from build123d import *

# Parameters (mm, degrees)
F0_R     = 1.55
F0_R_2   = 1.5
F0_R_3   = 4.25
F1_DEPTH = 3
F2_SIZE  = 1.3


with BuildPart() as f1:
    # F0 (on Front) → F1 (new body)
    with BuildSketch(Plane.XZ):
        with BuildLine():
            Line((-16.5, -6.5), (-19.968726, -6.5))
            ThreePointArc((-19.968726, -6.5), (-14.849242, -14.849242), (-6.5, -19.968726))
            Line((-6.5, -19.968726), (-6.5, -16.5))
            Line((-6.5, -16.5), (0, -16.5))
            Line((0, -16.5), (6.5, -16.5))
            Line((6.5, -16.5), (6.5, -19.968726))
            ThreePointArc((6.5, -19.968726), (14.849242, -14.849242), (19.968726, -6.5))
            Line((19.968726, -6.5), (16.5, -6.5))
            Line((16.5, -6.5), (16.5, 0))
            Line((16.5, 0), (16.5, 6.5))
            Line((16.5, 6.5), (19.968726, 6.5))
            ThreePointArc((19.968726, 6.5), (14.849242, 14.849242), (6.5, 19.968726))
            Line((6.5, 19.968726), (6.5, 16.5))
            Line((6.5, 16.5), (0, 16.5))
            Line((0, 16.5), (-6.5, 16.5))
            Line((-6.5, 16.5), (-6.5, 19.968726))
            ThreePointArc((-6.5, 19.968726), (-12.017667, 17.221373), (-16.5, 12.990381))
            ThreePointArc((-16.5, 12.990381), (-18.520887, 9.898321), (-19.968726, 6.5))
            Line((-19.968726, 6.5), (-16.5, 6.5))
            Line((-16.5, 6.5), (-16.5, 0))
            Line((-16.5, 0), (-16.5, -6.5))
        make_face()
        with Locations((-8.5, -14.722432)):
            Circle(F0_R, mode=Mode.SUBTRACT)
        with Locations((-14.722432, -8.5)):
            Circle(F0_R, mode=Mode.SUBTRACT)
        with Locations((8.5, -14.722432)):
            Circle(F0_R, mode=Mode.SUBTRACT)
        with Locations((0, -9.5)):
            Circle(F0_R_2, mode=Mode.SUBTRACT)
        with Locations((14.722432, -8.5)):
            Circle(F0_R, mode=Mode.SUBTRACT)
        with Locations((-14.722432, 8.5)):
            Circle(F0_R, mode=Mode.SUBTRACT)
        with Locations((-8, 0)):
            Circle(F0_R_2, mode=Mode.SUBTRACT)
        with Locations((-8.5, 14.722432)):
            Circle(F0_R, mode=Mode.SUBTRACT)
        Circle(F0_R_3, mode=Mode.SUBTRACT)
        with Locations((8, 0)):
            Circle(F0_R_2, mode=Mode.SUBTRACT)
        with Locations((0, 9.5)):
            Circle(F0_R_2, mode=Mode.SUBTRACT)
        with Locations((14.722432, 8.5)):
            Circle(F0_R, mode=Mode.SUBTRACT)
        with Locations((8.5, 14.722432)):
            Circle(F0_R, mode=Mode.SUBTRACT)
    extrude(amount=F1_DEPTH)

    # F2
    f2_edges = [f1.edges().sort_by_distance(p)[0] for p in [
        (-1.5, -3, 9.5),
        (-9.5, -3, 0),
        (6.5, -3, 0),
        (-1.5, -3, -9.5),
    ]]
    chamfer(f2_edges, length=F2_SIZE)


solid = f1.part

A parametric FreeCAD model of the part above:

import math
import FreeCAD as App
import Part
import Sketcher
from FreeCAD import Vector
Q = App.Units.Quantity


def edges_at(feature, points):
    """Names of the edges that pass closest to the given points."""
    edges = feature.Shape.Edges
    near = lambda p: min(range(len(edges)), key=lambda i: edges[i].distToShape(Part.Vertex(*p))[0])
    return sorted({f"Edge{near(p) + 1}" for p in points})

doc = App.newDocument("Part")
params = doc.addObject("Spreadsheet::Sheet", "Params")
for row, (alias, value) in enumerate([
    ("sketch1_diameter", "3 mm"),
    ("sketch1_radius", "21 mm"),
    ("sketch1_diameter2", "3.1 mm"),
    ("sketch1_diameter3", "8.5 mm"),
    ("sketch1_width", "13 mm"),
    ("pad1_length", "3 mm"),
    ("chamfer_size", "1.3 mm"),
], start=1):
    params.set(f"A{row}", alias)
    params.set(f"B{row}", "=" + value)
    params.setAlias(f"B{row}", alias)

body = doc.addObject("PartDesign::Body", "Body")

# Sketch on XZ plane
sketch1 = body.newObject("Sketcher::SketchObject", "Sketch")
sketch1.AttachmentSupport = (doc.getObject("XZ_Plane"), [""])
sketch1.MapMode = "FlatFace"
sketch1.addGeometry(Part.LineSegment(Vector(-16.5, -6.5, 0), Vector(-19.968726, -6.5, 0)), False)
sketch1.addGeometry(Part.ArcOfCircle(Part.Circle(Vector(0.000007, 0.000007, 0), Vector(0, 0, 1), 21.000009), math.radians(-161.969454), math.radians(-108.030546)), False)
sketch1.addGeometry(Part.LineSegment(Vector(-6.5, -19.968726, 0), Vector(-6.5, -16.5, 0)), False)
sketch1.addGeometry(Part.LineSegment(Vector(-6.5, -16.5, 0), Vector(6.5, -16.5, 0)), False)
sketch1.addGeometry(Part.LineSegment(Vector(6.5, -16.5, 0), Vector(6.5, -19.968726, 0)), False)
sketch1.addGeometry(Part.ArcOfCircle(Part.Circle(Vector(-0.000007, 0.000007, 0), Vector(0, 0, 1), 21.000009), math.radians(-71.969454), math.radians(-18.030546)), False)
sketch1.addGeometry(Part.LineSegment(Vector(19.968726, -6.5, 0), Vector(16.5, -6.5, 0)), False)
sketch1.addGeometry(Part.LineSegment(Vector(16.5, -6.5, 0), Vector(16.5, 6.5, 0)), False)
sketch1.addGeometry(Part.LineSegment(Vector(16.5, 6.5, 0), Vector(19.968726, 6.5, 0)), False)
sketch1.addGeometry(Part.ArcOfCircle(Part.Circle(Vector(-0.000007, -0.000007, 0), Vector(0, 0, 1), 21.000009), math.radians(18.030546), math.radians(71.969454)), False)
sketch1.addGeometry(Part.LineSegment(Vector(6.5, 19.968726, 0), Vector(6.5, 16.5, 0)), False)
sketch1.addGeometry(Part.LineSegment(Vector(6.5, 16.5, 0), Vector(-6.5, 16.5, 0)), False)
sketch1.addGeometry(Part.LineSegment(Vector(-6.5, 16.5, 0), Vector(-6.5, 19.968726, 0)), False)
sketch1.addGeometry(Part.ArcOfCircle(Part.Circle(Vector(0.000001, 0, 0), Vector(0, 0, 1), 21), math.radians(108.030537), math.radians(141.786791)), False)
sketch1.addGeometry(Part.ArcOfCircle(Part.Circle(Vector(-0.000008, 0.000003, 0), Vector(0, 0, 1), 20.999992), math.radians(141.786782), math.radians(161.969466)), False)
sketch1.addGeometry(Part.LineSegment(Vector(-19.968726, 6.5, 0), Vector(-16.5, 6.5, 0)), False)
sketch1.addGeometry(Part.LineSegment(Vector(-16.5, 6.5, 0), Vector(-16.5, -6.5, 0)), False)
sketch1.addGeometry(Part.Circle(Vector(-8.5, -14.722432, 0), Vector(0, 0, 1), 1.55), False)
sketch1.addGeometry(Part.Circle(Vector(-14.722432, -8.5, 0), Vector(0, 0, 1), 1.55), False)
sketch1.addGeometry(Part.Circle(Vector(0, -9.5, 0), Vector(0, 0, 1), 1.5), False)
sketch1.addGeometry(Part.Circle(Vector(8.5, -14.722432, 0), Vector(0, 0, 1), 1.55), False)
sketch1.addGeometry(Part.Circle(Vector(14.722432, -8.5, 0), Vector(0, 0, 1), 1.55), False)
sketch1.addGeometry(Part.Circle(Vector(-8, 0, 0), Vector(0, 0, 1), 1.5), False)
sketch1.addGeometry(Part.Circle(Vector(-14.722432, 8.5, 0), Vector(0, 0, 1), 1.55), False)
sketch1.addGeometry(Part.Circle(Vector(-8.5, 14.722432, 0), Vector(0, 0, 1), 1.55), False)
sketch1.addGeometry(Part.Circle(Vector(0, 0, 0), Vector(0, 0, 1), 4.25), False)
sketch1.addGeometry(Part.Circle(Vector(8, 0, 0), Vector(0, 0, 1), 1.5), False)
sketch1.addGeometry(Part.Circle(Vector(0, 9.5, 0), Vector(0, 0, 1), 1.5), False)
sketch1.addGeometry(Part.Circle(Vector(14.722432, 8.5, 0), Vector(0, 0, 1), 1.55), False)
sketch1.addGeometry(Part.Circle(Vector(8.5, 14.722432, 0), Vector(0, 0, 1), 1.55), False)
sketch1.addConstraint(Sketcher.Constraint("Coincident", 0, 2, 1, 1))
sketch1.addConstraint(Sketcher.Constraint("Coincident", 1, 2, 2, 1))
sketch1.addConstraint(Sketcher.Constraint("Coincident", 2, 2, 3, 1))
sketch1.addConstraint(Sketcher.Constraint("Coincident", 3, 2, 4, 1))
sketch1.addConstraint(Sketcher.Constraint("Coincident", 4, 2, 5, 1))
sketch1.addConstraint(Sketcher.Constraint("Coincident", 5, 2, 6, 1))
sketch1.addConstraint(Sketcher.Constraint("Coincident", 6, 2, 7, 1))
sketch1.addConstraint(Sketcher.Constraint("Coincident", 7, 2, 8, 1))
sketch1.addConstraint(Sketcher.Constraint("Coincident", 8, 2, 9, 1))
sketch1.addConstraint(Sketcher.Constraint("Coincident", 9, 2, 10, 1))
sketch1.addConstraint(Sketcher.Constraint("Coincident", 10, 2, 11, 1))
sketch1.addConstraint(Sketcher.Constraint("Coincident", 11, 2, 12, 1))
sketch1.addConstraint(Sketcher.Constraint("Coincident", 12, 2, 13, 1))
sketch1.addConstraint(Sketcher.Constraint("Tangent", 13, 2, 14, 1))
sketch1.addConstraint(Sketcher.Constraint("Coincident", 14, 2, 15, 1))
sketch1.addConstraint(Sketcher.Constraint("Coincident", 15, 2, 16, 1))
sketch1.addConstraint(Sketcher.Constraint("Coincident", 16, 2, 0, 1))
sketch1.addConstraint(Sketcher.Constraint("Horizontal", 0))
sketch1.addConstraint(Sketcher.Constraint("Vertical", 2))
sketch1.addConstraint(Sketcher.Constraint("Horizontal", 3))
sketch1.addConstraint(Sketcher.Constraint("Vertical", 4))
sketch1.addConstraint(Sketcher.Constraint("Horizontal", 6))
sketch1.addConstraint(Sketcher.Constraint("Vertical", 7))
sketch1.addConstraint(Sketcher.Constraint("Horizontal", 8))
sketch1.addConstraint(Sketcher.Constraint("Vertical", 10))
sketch1.addConstraint(Sketcher.Constraint("Horizontal", 11))
sketch1.addConstraint(Sketcher.Constraint("Vertical", 12))
sketch1.addConstraint(Sketcher.Constraint("Horizontal", 15))
sketch1.addConstraint(Sketcher.Constraint("Vertical", 16))
sketch1.addConstraint(Sketcher.Constraint("Coincident", 1, 3, -1, 1))
sketch1.addConstraint(Sketcher.Constraint("Coincident", 5, 3, -1, 1))
sketch1.addConstraint(Sketcher.Constraint("Coincident", 9, 3, -1, 1))
sketch1.addConstraint(Sketcher.Constraint("Coincident", 13, 3, -1, 1))
sketch1.addConstraint(Sketcher.Constraint("Coincident", 25, 3, -1, 1))
sketch1.addConstraint(Sketcher.Constraint("Equal", 1, 5))
sketch1.addConstraint(Sketcher.Constraint("Equal", 5, 9))
sketch1.addConstraint(Sketcher.Constraint("Equal", 17, 18))
sketch1.addConstraint(Sketcher.Constraint("Equal", 18, 20))
sketch1.addConstraint(Sketcher.Constraint("Equal", 20, 21))
sketch1.addConstraint(Sketcher.Constraint("Equal", 19, 22))
sketch1.addConstraint(Sketcher.Constraint("Equal", 21, 23))
sketch1.addConstraint(Sketcher.Constraint("Equal", 23, 24))
sketch1.addConstraint(Sketcher.Constraint("Equal", 22, 26))
sketch1.addConstraint(Sketcher.Constraint("Equal", 26, 27))
sketch1.addConstraint(Sketcher.Constraint("Equal", 24, 28))
sketch1.addConstraint(Sketcher.Constraint("Equal", 28, 29))
sketch1.addConstraint(Sketcher.Constraint("Symmetric", 21, 3, 23, 3, -1, 1))
sketch1.addConstraint(Sketcher.Constraint("Symmetric", 20, 3, 24, 3, -1, 1))
sketch1.addConstraint(Sketcher.Constraint("Symmetric", 22, 3, 26, 3, -1, 1))
sketch1.addConstraint(Sketcher.Constraint("Symmetric", 19, 3, 27, 3, -1, 1))
sketch1.addConstraint(Sketcher.Constraint("Symmetric", 18, 3, 28, 3, -1, 1))
sketch1.addConstraint(Sketcher.Constraint("Symmetric", 17, 3, 29, 3, -1, 1))
sketch1.addConstraint(Sketcher.Constraint("Symmetric", 2, 2, 10, 2, -1, 1))
sketch1.addConstraint(Sketcher.Constraint("Symmetric", 4, 2, 12, 2, -1, 1))
sketch1.addConstraint(Sketcher.Constraint("Symmetric", 5, 2, 14, 2, -1, 1))
sketch1.addConstraint(Sketcher.Constraint("Symmetric", 7, 2, 16, 2, -1, 1))
sketch1.addConstraint(Sketcher.Constraint("Symmetric", 17, 3, 20, 3, -2))
sketch1.addConstraint(Sketcher.Constraint("Symmetric", 18, 3, 21, 3, -2))
sketch1.addConstraint(Sketcher.Constraint("PointOnObject", 19, 3, -2))
sketch1.addConstraint(Sketcher.Constraint("PointOnObject", 22, 3, -1))
sketch1.addConstraint(Sketcher.Constraint("Horizontal", 1, 2, 4, 2))
sketch1.addConstraint(Sketcher.Constraint("Horizontal", 0, 2, 5, 2))
sketch1.addConstraint(Sketcher.Constraint("Vertical", 13, 2, 15, 2))
sketch1.addConstraint(Sketcher.Constraint("Equal", 15, 2))
sketch1.addConstraint(Sketcher.Constraint("Equal", 11, 7))
sketch1.addConstraint(Sketcher.Constraint("Diameter", 19, Q("3 mm")))
sketch1.addConstraint(Sketcher.Constraint("Radius", 13, Q("21 mm")))
sketch1.addConstraint(Sketcher.Constraint("Diameter", 17, Q("3.1 mm")))
sketch1.addConstraint(Sketcher.Constraint("Diameter", 25, Q("8.5 mm")))
sketch1.addConstraint(Sketcher.Constraint("DistanceX", 3, 1, 3, 2, Q("13 mm")))
sketch1.addConstraint(Sketcher.Constraint("DistanceX", 22, 3, -1, 1, Q("8 mm")))
sketch1.addConstraint(Sketcher.Constraint("DistanceX", 17, 3, 20, 3, Q("17 mm")))
sketch1.addConstraint(Sketcher.Constraint("DistanceY", 19, 3, 21, 3, Q("1 mm")))
sketch1.addConstraint(Sketcher.Constraint("DistanceY", 18, 3, 23, 3, Q("17 mm")))
sketch1.addConstraint(Sketcher.Constraint("DistanceY", 2, 2, 19, 3, Q("7 mm")))
sketch1.addConstraint(Sketcher.Constraint("DistanceY", 17, 3, 5, 3, Q("14.722439 mm")))
sketch1.addConstraint(Sketcher.Constraint("DistanceX", 18, 3, 17, 3, Q("6.222432 mm")))
sketch1.setExpression("Constraints[65]", "Params.sketch1_diameter")
sketch1.setExpression("Constraints[66]", "Params.sketch1_radius")
sketch1.setExpression("Constraints[67]", "Params.sketch1_diameter2")
sketch1.setExpression("Constraints[68]", "Params.sketch1_diameter3")
sketch1.setExpression("Constraints[69]", "Params.sketch1_width")
pad1 = body.newObject("PartDesign::Pad", "Pad")
pad1.Profile = sketch1
pad1.setExpression("Length", "Params.pad1_length")
doc.recompute()

chamfer = body.newObject("PartDesign::Chamfer", "Chamfer")
chamfer.Base = (pad1, edges_at(pad1, [
    (-1.5, -3, 9.5),
    (-9.5, -3, 0),
    (6.5, -3, 0),
    (-1.5, -3, -9.5),
]))
chamfer.setExpression("Size", "Params.chamfer_size")

doc.recompute()
